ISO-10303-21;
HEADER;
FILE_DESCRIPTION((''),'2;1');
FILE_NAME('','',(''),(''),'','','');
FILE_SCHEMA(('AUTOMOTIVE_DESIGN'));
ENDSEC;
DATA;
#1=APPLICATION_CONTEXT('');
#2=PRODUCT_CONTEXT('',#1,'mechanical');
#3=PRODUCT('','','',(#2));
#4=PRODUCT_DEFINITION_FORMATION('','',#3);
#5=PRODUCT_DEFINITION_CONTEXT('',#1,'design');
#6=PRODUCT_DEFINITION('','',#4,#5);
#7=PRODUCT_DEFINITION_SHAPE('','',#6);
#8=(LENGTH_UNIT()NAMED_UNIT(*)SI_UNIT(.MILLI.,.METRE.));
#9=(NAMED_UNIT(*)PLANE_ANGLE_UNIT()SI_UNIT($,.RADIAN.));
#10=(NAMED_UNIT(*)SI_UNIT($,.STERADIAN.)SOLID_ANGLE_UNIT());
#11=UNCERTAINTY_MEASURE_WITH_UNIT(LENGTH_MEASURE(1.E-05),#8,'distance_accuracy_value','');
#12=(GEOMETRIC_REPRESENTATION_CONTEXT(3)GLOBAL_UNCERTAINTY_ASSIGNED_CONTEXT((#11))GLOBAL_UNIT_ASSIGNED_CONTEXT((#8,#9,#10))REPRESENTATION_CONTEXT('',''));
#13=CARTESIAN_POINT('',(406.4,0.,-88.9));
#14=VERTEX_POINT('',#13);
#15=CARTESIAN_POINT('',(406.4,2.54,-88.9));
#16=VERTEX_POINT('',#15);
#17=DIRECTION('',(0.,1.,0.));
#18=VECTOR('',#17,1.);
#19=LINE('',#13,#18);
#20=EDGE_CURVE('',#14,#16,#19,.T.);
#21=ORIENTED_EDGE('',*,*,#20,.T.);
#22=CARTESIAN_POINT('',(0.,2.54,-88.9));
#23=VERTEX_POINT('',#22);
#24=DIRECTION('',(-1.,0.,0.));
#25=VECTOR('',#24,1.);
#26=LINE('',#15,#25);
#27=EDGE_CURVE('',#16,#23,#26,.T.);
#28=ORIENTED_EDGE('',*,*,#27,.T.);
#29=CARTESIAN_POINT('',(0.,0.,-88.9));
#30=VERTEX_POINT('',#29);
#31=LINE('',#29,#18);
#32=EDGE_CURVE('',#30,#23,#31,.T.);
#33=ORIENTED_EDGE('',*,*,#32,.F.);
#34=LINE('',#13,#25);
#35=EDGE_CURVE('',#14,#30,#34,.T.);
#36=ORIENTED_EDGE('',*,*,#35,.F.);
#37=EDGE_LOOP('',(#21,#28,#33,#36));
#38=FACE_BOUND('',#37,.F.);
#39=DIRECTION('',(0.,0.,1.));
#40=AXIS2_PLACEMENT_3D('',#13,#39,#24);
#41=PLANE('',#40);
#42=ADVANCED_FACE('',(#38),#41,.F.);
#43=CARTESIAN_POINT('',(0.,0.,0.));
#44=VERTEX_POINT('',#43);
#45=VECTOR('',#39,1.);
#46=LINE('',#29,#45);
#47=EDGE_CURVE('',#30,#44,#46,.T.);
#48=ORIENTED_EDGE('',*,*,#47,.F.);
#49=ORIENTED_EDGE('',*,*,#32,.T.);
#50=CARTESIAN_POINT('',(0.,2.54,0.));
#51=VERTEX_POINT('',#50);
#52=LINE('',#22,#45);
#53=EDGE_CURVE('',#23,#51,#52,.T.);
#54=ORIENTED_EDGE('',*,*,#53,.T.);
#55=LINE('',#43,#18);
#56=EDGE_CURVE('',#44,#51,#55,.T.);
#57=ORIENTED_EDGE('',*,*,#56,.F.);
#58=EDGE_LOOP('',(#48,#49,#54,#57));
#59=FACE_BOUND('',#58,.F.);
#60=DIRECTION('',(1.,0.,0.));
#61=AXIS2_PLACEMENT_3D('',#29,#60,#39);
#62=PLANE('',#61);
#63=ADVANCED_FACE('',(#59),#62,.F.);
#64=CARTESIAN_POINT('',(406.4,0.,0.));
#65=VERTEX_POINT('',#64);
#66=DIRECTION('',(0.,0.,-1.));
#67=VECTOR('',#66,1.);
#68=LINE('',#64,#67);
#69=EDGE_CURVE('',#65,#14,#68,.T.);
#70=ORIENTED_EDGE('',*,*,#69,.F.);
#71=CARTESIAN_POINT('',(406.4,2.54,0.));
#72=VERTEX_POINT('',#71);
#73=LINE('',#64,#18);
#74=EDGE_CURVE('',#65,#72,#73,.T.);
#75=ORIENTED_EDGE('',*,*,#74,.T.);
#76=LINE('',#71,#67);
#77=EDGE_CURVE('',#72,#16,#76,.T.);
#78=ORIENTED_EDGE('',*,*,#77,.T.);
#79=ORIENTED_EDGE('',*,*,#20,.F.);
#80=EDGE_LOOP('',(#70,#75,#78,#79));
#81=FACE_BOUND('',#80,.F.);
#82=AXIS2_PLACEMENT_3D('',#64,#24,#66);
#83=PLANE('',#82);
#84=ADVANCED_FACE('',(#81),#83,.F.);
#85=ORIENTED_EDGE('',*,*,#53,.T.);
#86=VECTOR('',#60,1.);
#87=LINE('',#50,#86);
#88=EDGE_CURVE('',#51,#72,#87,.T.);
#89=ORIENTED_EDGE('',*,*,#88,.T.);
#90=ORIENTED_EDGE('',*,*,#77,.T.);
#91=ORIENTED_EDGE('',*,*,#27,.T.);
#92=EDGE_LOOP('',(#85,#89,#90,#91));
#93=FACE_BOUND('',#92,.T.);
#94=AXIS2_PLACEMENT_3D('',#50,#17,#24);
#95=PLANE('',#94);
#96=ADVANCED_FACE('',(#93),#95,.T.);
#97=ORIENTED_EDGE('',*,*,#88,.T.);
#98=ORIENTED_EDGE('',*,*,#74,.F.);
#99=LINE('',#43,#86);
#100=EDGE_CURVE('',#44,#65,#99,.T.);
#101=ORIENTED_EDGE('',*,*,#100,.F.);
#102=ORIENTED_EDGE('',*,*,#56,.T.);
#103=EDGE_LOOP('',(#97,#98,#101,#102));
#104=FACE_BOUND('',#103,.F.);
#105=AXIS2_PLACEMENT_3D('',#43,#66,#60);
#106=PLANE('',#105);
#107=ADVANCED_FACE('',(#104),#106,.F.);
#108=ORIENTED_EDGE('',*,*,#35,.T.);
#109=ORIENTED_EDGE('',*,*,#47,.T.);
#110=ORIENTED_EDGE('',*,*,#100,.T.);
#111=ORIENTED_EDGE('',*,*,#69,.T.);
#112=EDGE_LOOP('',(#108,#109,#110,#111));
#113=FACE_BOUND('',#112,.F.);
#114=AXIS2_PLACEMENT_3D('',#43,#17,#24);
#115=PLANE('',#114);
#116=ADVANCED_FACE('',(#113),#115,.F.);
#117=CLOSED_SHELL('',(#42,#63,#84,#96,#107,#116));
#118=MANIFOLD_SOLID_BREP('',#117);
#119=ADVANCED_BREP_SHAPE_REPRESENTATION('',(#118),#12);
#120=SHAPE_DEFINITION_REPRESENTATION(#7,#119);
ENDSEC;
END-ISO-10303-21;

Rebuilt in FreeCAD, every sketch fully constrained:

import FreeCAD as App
import Part
import Sketcher
Q = App.Units.Quantity


def add_polygon(sketch, points):
    """Adds a closed chain of lines whose ends are joined by coincident constraints."""
    first, n = sketch.GeometryCount, len(points)
    for a, b in zip(points, points[1:] + points[:1]):
        sketch.addGeometry(Part.LineSegment(App.Vector(*a, 0), App.Vector(*b, 0)), False)
    for i in range(n):
        sketch.addConstraint(Sketcher.Constraint("Coincident", first + i, 2, first + (i + 1) % n, 1))

doc = App.newDocument("Part")
params = doc.addObject("Spreadsheet::Sheet", "Params")
for row, (alias, value) in enumerate([
    ("sketch1_width", "16 in"),
    ("sketch1_height", "3.5 in"),
    ("pad1_length", "0.1 in"),
], start=1):
    params.set(f"A{row}", alias)
    params.set(f"B{row}", "=" + value)
    params.setAlias(f"B{row}", alias)

body = doc.addObject("PartDesign::Body", "Body")

# Sketch on XZ plane
sketch1 = body.newObject("Sketcher::SketchObject", "Sketch")
sketch1.AttachmentSupport = (doc.getObject("XZ_Plane"), [""])
sketch1.MapMode = "FlatFace"
add_polygon(sketch1, [(0, -88.9), (0, 0), (406.4, 0), (406.4, -88.9)])  # lines 0-3
sketch1.addConstraint(Sketcher.Constraint("Vertical", 0))
sketch1.addConstraint(Sketcher.Constraint("Horizontal", 1))
sketch1.addConstraint(Sketcher.Constraint("Vertical", 2))
sketch1.addConstraint(Sketcher.Constraint("Horizontal", 3))
sketch1.addConstraint(Sketcher.Constraint("Coincident", 0, 2, -1, 1))
sketch1.addConstraint(Sketcher.Constraint("DistanceX", 1, 1, 1, 2, Q("16 in")))
sketch1.addConstraint(Sketcher.Constraint("DistanceY", 0, 1, 0, 2, Q("3.5 in")))
sketch1.setExpression("Constraints[9]", "Params.sketch1_width")
sketch1.setExpression("Constraints[10]", "Params.sketch1_height")
pad1 = body.newObject("PartDesign::Pad", "Pad")
pad1.Profile = sketch1
pad1.setExpression("Length", "Params.pad1_length")
pad1.Reversed = True

doc.recompute()
